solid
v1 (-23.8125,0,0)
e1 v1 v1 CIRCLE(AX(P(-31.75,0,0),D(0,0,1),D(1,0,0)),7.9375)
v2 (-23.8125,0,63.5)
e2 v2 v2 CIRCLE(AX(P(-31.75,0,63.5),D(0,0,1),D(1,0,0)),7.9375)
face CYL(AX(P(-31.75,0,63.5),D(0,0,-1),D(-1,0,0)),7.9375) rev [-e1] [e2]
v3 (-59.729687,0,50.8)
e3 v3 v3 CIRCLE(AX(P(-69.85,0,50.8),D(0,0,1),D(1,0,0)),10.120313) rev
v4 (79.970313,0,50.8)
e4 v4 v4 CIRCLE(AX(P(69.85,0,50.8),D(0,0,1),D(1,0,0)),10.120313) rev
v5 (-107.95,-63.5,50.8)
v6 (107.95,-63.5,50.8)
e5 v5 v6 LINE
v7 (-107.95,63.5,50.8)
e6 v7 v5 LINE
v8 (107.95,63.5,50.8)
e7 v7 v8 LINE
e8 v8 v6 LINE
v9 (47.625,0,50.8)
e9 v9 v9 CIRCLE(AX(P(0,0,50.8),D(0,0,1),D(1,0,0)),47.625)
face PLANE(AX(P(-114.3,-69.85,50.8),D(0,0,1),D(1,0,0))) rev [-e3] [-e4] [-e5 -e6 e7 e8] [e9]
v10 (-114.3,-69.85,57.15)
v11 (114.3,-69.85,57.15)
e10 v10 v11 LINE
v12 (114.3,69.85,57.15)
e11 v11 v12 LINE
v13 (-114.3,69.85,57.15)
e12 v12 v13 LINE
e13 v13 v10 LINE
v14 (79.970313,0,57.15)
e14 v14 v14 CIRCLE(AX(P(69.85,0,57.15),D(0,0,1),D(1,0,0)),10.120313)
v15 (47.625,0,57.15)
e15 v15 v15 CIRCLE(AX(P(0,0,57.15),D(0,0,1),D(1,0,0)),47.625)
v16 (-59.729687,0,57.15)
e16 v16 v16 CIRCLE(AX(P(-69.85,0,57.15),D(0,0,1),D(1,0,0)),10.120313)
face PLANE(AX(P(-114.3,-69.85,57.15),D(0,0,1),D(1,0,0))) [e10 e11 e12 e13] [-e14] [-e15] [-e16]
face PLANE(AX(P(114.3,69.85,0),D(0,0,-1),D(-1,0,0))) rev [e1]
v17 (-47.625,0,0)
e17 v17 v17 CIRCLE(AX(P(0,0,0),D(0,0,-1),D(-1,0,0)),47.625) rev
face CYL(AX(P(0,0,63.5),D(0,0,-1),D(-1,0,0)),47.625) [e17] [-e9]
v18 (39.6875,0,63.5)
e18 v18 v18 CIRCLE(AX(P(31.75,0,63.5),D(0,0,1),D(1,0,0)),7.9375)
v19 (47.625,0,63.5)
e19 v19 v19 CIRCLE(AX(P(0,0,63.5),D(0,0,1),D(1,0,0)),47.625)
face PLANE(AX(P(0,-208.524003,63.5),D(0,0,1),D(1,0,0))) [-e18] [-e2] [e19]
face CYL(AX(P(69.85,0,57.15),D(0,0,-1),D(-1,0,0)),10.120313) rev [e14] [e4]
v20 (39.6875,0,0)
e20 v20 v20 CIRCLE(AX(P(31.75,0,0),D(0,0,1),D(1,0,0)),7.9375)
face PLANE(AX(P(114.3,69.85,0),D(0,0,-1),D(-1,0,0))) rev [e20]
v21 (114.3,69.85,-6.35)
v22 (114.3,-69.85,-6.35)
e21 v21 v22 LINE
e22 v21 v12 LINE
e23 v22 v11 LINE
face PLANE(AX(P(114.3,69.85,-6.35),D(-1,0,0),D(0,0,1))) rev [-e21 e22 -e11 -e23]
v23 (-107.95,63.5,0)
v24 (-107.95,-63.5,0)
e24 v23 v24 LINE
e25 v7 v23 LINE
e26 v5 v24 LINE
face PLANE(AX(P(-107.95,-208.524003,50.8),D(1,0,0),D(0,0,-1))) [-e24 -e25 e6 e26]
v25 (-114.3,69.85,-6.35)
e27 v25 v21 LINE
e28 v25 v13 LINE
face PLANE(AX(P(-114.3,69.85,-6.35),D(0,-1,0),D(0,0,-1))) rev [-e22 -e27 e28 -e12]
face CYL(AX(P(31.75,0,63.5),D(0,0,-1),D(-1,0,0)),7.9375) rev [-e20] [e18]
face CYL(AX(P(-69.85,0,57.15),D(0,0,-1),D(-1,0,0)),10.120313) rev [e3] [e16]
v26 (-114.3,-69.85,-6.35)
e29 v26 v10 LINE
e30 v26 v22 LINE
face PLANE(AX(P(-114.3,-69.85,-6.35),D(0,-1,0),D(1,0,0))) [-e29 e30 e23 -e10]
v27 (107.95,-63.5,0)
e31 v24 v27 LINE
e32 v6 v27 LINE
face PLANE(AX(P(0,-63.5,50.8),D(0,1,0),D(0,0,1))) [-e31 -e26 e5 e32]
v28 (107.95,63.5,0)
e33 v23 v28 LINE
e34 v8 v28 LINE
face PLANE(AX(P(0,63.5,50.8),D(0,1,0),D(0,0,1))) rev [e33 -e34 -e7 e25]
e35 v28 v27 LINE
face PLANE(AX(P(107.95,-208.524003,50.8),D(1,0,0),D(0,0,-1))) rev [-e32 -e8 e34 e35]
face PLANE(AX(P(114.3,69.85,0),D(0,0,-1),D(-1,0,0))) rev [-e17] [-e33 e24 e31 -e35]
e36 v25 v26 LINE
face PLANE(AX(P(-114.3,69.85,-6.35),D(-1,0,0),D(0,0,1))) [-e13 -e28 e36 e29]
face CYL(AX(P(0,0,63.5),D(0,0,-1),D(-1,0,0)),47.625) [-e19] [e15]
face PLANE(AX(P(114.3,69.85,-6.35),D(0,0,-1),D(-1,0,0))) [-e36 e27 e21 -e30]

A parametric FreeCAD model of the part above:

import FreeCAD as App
import Part
import Sketcher
Q = App.Units.Quantity


def add_polygon(sketch, points):
    """Adds a closed chain of lines whose ends are joined by coincident constraints."""
    first, n = sketch.GeometryCount, len(points)
    for a, b in zip(points, points[1:] + points[:1]):
        sketch.addGeometry(Part.LineSegment(App.Vector(*a, 0), App.Vector(*b, 0)), False)
    for i in range(n):
        sketch.addConstraint(Sketcher.Constraint("Coincident", first + i, 2, first + (i + 1) % n, 1))

doc = App.newDocument("Part")
body = doc.addObject("PartDesign::Body", "Body")

sketch1 = doc.addObject("Sketcher::SketchObject", "Sketch")
body.addObject(sketch1)
sketch1.AttachmentSupport = (doc.XY_Plane, [""])
sketch1.MapMode = "FlatFace"
add_polygon(sketch1, [(-114.3, 69.85), (-114.3, -69.85), (114.3, -69.85), (114.3, 69.85)])
sketch1.addConstraint([
    Sketcher.Constraint("Vertical", 0),
    Sketcher.Constraint("Horizontal", 1),
    Sketcher.Constraint("Vertical", 2),
    Sketcher.Constraint("Horizontal", 3),
    Sketcher.Constraint("Symmetric", 0, 2, 2, 2, -1, 1),
    Sketcher.Constraint("DistanceX", 1, 1, 1, 2, Q("9 in")),
    Sketcher.Constraint("DistanceY", 0, 2, 0, 1, Q("5.5 in")),
])
pad1 = doc.addObject("PartDesign::Pad", "Pad")
body.addObject(pad1)
pad1.Profile = sketch1
pad1.Length = Q("0.25 in")
pad1.Reversed = True

sketch2 = doc.addObject("Sketcher::SketchObject", "Sketch001")
body.addObject(sketch2)
sketch2.AttachmentSupport = (doc.XY_Plane, [""])
sketch2.MapMode = "FlatFace"
add_polygon(sketch2, [(-114.3, 69.85), (-114.3, -69.85), (114.3, -69.85), (114.3, 69.85)])
add_polygon(sketch2, [(107.95, -63.5), (-107.95, -63.5), (-107.95, 63.5), (107.95, 63.5)])
sketch2.addConstraint([
    Sketcher.Constraint("Vertical", 0),
    Sketcher.Constraint("Horizontal", 1),
    Sketcher.Constraint("Vertical", 2),
    Sketcher.Constraint("Horizontal", 3),
    Sketcher.Constraint("Horizontal", 4),
    Sketcher.Constraint("Vertical", 5),
    Sketcher.Constraint("Horizontal", 6),
    Sketcher.Constraint("Vertical", 7),
    Sketcher.Constraint("Symmetric", 0, 2, 2, 2, -1, 1),
    Sketcher.Constraint("Symmetric", 4, 2, 6, 2, -1, 1),
    Sketcher.Constraint("DistanceX", 1, 1, 1, 2, Q("9 in")),
    Sketcher.Constraint("DistanceY", 5, 1, 5, 2, Q("5 in")),
    Sketcher.Constraint("DistanceX", 4, 2, 4, 1, Q("8.5 in")),
    Sketcher.Constraint("DistanceY", 0, 2, 0, 1, Q("5.5 in")),
])
pad2 = doc.addObject("PartDesign::Pad", "Pad001")
body.addObject(pad2)
pad2.Profile = sketch2
pad2.Length = Q("2 in")

sketch3 = doc.addObject("Sketcher::SketchObject", "Sketch002")
body.addObject(sketch3)
sketch3.AttachmentSupport = (doc.XY_Plane, [""])
sketch3.MapMode = "FlatFace"
sketch3.addGeometry([
    Part.Circle(App.Vector(0, 0, 0), App.Vector(0, 0, 1), 47.625),
    Part.Circle(App.Vector(31.75, 0, 0), App.Vector(0, 0, 1), 7.9375),
    Part.Circle(App.Vector(-31.75, 0, 0), App.Vector(0, 0, 1), 7.9375),
], False)
sketch3.addConstraint([
    Sketcher.Constraint("Coincident", 0, 3, -1, 1),
    Sketcher.Constraint("Equal", 1, 2),
    Sketcher.Constraint("Symmetric", 1, 3, 2, 3, -1, 1),
    Sketcher.Constraint("PointOnObject", 1, 3, -1),
    Sketcher.Constraint("Diameter", 0, Q("3.75 in")),
    Sketcher.Constraint("Diameter", 1, Q("0.625 in")),
    Sketcher.Constraint("DistanceX", 2, 3, 1, 3, Q("2.5 in")),
])
pad3 = doc.addObject("PartDesign::Pad", "Pad002")
body.addObject(pad3)
pad3.Profile = sketch3
pad3.Length = Q("2.5 in")

sketch4 = doc.addObject("Sketcher::SketchObject", "Sketch003")
body.addObject(sketch4)
sketch4.AttachmentSupport = (doc.XY_Plane, [""])
sketch4.MapMode = "FlatFace"
sketch4.AttachmentOffset = App.Placement(App.Vector(0, 0, 2 * 25.4), App.Rotation())
add_polygon(sketch4, [(-114.3, 69.85), (-114.3, -69.85), (114.3, -69.85), (114.3, 69.85)])
sketch4.addConstraint([
    Sketcher.Constraint("Vertical", 0),
    Sketcher.Constraint("Horizontal", 1),
    Sketcher.Constraint("Vertical", 2),
    Sketcher.Constraint("Horizontal", 3),
    Sketcher.Constraint("Symmetric", 0, 2, 2, 2, -1, 1),
    Sketcher.Constraint("DistanceX", 1, 1, 1, 2, Q("9 in")),
    Sketcher.Constraint("DistanceY", 0, 2, 0, 1, Q("5.5 in")),
])
pad4 = doc.addObject("PartDesign::Pad", "Pad003")
body.addObject(pad4)
pad4.Profile = sketch4
pad4.Length = Q("0.25 in")

sketch5 = doc.addObject("Sketcher::SketchObject", "Sketch004")
body.addObject(sketch5)
sketch5.AttachmentSupport = (doc.XY_Plane, [""])
sketch5.MapMode = "FlatFace"
sketch5.addGeometry([
    Part.Circle(App.Vector(-69.85, 0, 0), App.Vector(0, 0, 1), 10.120313),
    Part.Circle(App.Vector(-31.75, 0, 0), App.Vector(0, 0, 1), 7.9375),
    Part.Circle(App.Vector(69.85, 0, 0), App.Vector(0, 0, 1), 10.120313),
    Part.Circle(App.Vector(31.75, 0, 0), App.Vector(0, 0, 1), 7.9375),
], False)
sketch5.addConstraint([
    Sketcher.Constraint("Equal", 0, 2),
    Sketcher.Constraint("Equal", 1, 3),
    Sketcher.Constraint("Symmetric", 0, 3, 2, 3, -1, 1),
    Sketcher.Constraint("Symmetric", 1, 3, 3, 3, -1, 1),
    Sketcher.Constraint("PointOnObject", 0, 3, -1),
    Sketcher.Constraint("PointOnObject", 1, 3, -1),
    Sketcher.Constraint("Diameter", 0, Q("0.796875 in")),
    Sketcher.Constraint("Diameter", 1, Q("0.625 in")),
    Sketcher.Constraint("DistanceX", 1, 3, 2, 3, Q("4 in")),
    Sketcher.Constraint("DistanceX", 0, 3, 1, 3, Q("1.5 in")),
])
pocket1 = doc.addObject("PartDesign::Pocket", "Pocket")
body.addObject(pocket1)
pocket1.Profile = sketch5
pocket1.Length = Q("2.25 in")
pocket1.Reversed = True

doc.recompute()
